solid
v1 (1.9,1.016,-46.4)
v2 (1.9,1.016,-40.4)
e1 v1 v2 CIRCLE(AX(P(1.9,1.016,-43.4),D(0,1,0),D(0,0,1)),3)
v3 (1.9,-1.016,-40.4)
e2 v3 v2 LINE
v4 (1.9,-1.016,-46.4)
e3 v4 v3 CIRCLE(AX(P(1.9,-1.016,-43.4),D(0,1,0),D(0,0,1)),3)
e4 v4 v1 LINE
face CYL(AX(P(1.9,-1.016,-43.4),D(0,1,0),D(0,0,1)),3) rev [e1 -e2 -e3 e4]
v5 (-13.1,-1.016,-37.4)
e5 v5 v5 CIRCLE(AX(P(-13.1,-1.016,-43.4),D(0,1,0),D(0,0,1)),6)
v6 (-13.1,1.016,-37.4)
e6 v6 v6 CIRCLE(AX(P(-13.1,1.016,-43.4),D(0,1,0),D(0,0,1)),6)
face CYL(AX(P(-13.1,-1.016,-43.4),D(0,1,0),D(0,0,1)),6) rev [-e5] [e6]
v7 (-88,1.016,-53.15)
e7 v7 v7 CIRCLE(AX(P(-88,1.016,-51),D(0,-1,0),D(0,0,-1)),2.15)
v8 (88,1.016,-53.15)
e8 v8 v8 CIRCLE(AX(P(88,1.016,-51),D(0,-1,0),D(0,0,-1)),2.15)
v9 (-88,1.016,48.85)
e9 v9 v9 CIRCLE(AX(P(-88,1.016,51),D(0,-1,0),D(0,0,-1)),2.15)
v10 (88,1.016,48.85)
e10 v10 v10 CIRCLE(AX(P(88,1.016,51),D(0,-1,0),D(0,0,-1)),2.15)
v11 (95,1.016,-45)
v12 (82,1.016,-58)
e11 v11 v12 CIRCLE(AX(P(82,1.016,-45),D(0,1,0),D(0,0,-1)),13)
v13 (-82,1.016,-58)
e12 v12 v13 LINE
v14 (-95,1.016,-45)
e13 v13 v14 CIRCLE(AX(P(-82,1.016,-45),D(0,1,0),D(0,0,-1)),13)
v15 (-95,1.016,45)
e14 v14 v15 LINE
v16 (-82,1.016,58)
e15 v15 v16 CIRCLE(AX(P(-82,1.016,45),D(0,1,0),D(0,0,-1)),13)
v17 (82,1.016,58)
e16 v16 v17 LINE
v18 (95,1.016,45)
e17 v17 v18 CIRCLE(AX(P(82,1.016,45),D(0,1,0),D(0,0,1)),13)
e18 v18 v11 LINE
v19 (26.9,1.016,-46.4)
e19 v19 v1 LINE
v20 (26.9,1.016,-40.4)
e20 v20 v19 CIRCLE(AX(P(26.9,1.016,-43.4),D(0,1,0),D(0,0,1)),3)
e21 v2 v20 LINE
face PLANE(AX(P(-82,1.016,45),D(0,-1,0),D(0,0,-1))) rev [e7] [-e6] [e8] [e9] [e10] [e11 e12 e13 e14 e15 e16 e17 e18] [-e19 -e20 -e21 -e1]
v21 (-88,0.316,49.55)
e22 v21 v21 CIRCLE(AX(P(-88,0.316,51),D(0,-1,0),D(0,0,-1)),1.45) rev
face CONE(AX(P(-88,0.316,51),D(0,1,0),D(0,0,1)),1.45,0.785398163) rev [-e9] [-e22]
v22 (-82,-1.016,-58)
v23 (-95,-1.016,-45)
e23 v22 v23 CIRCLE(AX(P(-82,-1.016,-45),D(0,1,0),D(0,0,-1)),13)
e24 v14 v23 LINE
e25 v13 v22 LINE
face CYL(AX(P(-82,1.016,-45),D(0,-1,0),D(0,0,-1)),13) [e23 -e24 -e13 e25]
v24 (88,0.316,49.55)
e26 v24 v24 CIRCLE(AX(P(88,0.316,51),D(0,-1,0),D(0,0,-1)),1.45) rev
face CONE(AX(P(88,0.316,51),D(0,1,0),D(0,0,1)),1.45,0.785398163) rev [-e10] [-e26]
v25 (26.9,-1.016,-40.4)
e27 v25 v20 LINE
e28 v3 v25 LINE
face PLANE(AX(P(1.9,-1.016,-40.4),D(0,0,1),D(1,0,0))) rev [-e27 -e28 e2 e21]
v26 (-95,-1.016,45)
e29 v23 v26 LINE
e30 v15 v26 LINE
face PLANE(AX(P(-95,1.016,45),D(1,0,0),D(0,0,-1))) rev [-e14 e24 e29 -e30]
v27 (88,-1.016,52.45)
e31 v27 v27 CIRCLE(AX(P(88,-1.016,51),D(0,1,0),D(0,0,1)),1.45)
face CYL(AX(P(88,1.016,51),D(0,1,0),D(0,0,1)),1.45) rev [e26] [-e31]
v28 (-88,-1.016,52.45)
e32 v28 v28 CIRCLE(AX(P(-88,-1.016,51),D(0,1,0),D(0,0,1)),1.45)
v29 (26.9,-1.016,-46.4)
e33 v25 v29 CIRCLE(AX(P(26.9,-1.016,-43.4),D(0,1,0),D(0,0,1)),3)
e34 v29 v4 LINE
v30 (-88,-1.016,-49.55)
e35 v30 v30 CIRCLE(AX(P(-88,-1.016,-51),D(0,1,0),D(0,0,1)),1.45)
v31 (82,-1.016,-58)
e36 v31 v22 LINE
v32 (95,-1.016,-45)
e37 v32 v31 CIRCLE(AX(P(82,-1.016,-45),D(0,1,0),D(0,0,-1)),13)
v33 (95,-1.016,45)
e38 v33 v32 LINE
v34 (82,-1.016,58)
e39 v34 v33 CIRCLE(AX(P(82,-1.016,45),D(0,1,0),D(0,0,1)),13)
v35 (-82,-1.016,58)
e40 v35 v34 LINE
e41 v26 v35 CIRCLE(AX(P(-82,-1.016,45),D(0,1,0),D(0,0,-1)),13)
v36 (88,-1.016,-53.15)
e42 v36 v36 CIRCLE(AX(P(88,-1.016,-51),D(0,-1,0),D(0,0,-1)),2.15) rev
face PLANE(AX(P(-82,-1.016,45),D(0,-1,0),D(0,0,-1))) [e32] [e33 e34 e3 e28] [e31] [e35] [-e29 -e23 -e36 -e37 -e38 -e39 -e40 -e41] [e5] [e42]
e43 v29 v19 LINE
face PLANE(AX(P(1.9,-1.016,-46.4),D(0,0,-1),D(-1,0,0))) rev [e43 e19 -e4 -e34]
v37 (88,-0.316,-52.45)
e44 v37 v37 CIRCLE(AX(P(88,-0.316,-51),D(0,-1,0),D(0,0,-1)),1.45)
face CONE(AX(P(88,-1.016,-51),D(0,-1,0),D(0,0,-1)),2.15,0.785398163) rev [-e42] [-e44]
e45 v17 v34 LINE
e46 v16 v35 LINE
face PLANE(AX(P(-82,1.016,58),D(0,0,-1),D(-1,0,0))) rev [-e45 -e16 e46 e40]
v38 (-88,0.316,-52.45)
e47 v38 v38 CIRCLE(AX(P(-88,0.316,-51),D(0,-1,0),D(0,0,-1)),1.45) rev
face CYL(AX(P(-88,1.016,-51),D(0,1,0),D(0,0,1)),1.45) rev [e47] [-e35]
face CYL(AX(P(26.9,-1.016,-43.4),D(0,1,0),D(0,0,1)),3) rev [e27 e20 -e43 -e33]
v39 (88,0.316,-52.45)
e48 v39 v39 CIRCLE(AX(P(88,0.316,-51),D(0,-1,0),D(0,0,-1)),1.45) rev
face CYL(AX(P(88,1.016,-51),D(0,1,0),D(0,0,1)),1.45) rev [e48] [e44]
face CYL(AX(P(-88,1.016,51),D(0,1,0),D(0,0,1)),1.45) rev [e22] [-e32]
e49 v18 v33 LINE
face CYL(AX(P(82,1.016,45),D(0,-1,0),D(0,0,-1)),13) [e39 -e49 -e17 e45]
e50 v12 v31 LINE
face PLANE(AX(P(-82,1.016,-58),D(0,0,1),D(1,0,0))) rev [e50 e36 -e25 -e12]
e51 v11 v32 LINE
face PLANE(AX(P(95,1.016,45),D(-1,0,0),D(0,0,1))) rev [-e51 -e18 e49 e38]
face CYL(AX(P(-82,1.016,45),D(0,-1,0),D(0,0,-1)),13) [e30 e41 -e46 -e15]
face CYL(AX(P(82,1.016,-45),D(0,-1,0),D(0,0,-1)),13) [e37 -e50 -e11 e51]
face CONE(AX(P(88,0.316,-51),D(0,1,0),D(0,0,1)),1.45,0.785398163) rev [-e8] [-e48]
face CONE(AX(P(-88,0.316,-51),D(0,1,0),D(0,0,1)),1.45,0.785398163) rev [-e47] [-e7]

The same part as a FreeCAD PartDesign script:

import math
import FreeCAD as App
import Part
import Sketcher

V = App.Vector
Q = App.Units.Quantity


def edges_at(feature, points):
    """Names of the edges that pass closest to the given points."""
    edges = feature.Shape.Edges
    near = lambda p: min(range(len(edges)), key=lambda i: edges[i].distToShape(Part.Vertex(*p))[0])
    return sorted({f"Edge{near(p) + 1}" for p in points})

doc = App.newDocument("Part")
body = doc.addObject("PartDesign::Body", "Body")

# Sketch on XZ plane
sketch1 = doc.addObject("Sketcher::SketchObject", "Sketch")
body.addObject(sketch1)
sketch1.AttachmentSupport = (doc.XZ_Plane, [""])
sketch1.MapMode = "FlatFace"
sketch1.addGeometry(Part.LineSegment(V(-82, 58, 0), V(82, 58, 0)), False)
sketch1.addGeometry(Part.ArcOfCircle(Part.Circle(V(82, 45, 0), V(0, 0, 1), 13), math.radians(0), math.radians(90)), False)
sketch1.addGeometry(Part.LineSegment(V(95, 45, 0), V(95, -45, 0)), False)
sketch1.addGeometry(Part.ArcOfCircle(Part.Circle(V(82, -45, 0), V(0, 0, 1), 13), math.radians(-90), math.radians(0)), False)
sketch1.addGeometry(Part.LineSegment(V(82, -58, 0), V(-82, -58, 0)), False)
sketch1.addGeometry(Part.ArcOfCircle(Part.Circle(V(-82, -45, 0), V(0, 0, 1), 13), math.radians(-180), math.radians(-90)), False)
sketch1.addGeometry(Part.LineSegment(V(-95, -45, 0), V(-95, 45, 0)), False)
sketch1.addGeometry(Part.ArcOfCircle(Part.Circle(V(-82, 45, 0), V(0, 0, 1), 13), math.radians(90), math.radians(180)), False)
sketch1.addConstraint(Sketcher.Constraint("Tangent", 0, 2, 1, 2))
sketch1.addConstraint(Sketcher.Constraint("Tangent", 1, 1, 2, 1))
sketch1.addConstraint(Sketcher.Constraint("Tangent", 2, 2, 3, 2))
sketch1.addConstraint(Sketcher.Constraint("Tangent", 3, 1, 4, 1))
sketch1.addConstraint(Sketcher.Constraint("Tangent", 4, 2, 5, 2))
sketch1.addConstraint(Sketcher.Constraint("Tangent", 5, 1, 6, 1))
sketch1.addConstraint(Sketcher.Constraint("Tangent", 6, 2, 7, 2))
sketch1.addConstraint(Sketcher.Constraint("Tangent", 7, 1, 0, 1))
sketch1.addConstraint(Sketcher.Constraint("Horizontal", 0))
sketch1.addConstraint(Sketcher.Constraint("Vertical", 2))
sketch1.addConstraint(Sketcher.Constraint("Horizontal", 4))
sketch1.addConstraint(Sketcher.Constraint("Vertical", 6))
sketch1.addConstraint(Sketcher.Constraint("Equal", 1, 3))
sketch1.addConstraint(Sketcher.Constraint("Equal", 3, 5))
sketch1.addConstraint(Sketcher.Constraint("Equal", 5, 7))
sketch1.addConstraint(Sketcher.Constraint("Symmetric", 1, 3, 5, 3, -1, 1))
sketch1.addConstraint(Sketcher.Constraint("Radius", 1, Q("13 mm")))
sketch1.addConstraint(Sketcher.Constraint("DistanceX", 0, 1, 0, 2, Q("164 mm")))
sketch1.addConstraint(Sketcher.Constraint("DistanceY", 2, 2, 2, 1, Q("90 mm")))
pad1 = doc.addObject("PartDesign::Pad", "Pad")
body.addObject(pad1)
pad1.Profile = sketch1
pad1.Length = 2.032
pad1.Midplane = True

# Sketch on XZ plane
sketch2 = doc.addObject("Sketcher::SketchObject", "Sketch001")
body.addObject(sketch2)
sketch2.AttachmentSupport = (doc.XZ_Plane, [""])
sketch2.MapMode = "FlatFace"
sketch2.AttachmentOffset = App.Placement(V(0, 0, -1.016), App.Rotation())
sketch2.addGeometry(Part.Circle(V(-88, 51, 0), V(0, 0, 1), 1.4), False)
sketch2.addGeometry(Part.Circle(V(-88, -51, 0), V(0, 0, 1), 1.4), False)
sketch2.addGeometry(Part.Circle(V(88, 51, 0), V(0, 0, 1), 1.4), False)
sketch2.addGeometry(Part.Circle(V(88, -51, 0), V(0, 0, 1), 1.4), False)
sketch2.addConstraint(Sketcher.Constraint("Equal", 0, 1))
sketch2.addConstraint(Sketcher.Constraint("Equal", 1, 2))
sketch2.addConstraint(Sketcher.Constraint("Equal", 2, 3))
sketch2.addConstraint(Sketcher.Constraint("Symmetric", 1, 3, 2, 3, -1, 1))
sketch2.addConstraint(Sketcher.Constraint("Symmetric", 0, 3, 3, 3, -1, 1))
sketch2.addConstraint(Sketcher.Constraint("Symmetric", 0, 3, 2, 3, -2))
sketch2.addConstraint(Sketcher.Constraint("Diameter", 0, Q("2.9 mm")))
sketch2.addConstraint(Sketcher.Constraint("DistanceX", 0, 3, -1, 1, Q("88 mm")))
sketch2.addConstraint(Sketcher.Constraint("DistanceY", -1, 1, 0, 3, Q("51 mm")))
doc.recompute()
hole = doc.addObject("PartDesign::Hole", "Hole")
body.addObject(hole)
hole.Profile = sketch2
hole.ThreadType = "None"
hole.Diameter = 2.9
hole.DepthType = "ThroughAll"
hole.Reversed = True
doc.recompute()

chamfer = doc.addObject("PartDesign::Chamfer", "Chamfer")
body.addObject(chamfer)
chamfer.Base = (hole, edges_at(hole, [
    (89.45, 1.016, -51),
    (89.45, -1.016, -51),
    (89.45, 1.016, 51),
    (-86.55, 1.016, -51),
    (-86.55, 1.016, 51),
]))
chamfer.Size = 0.7

# Sketch on XZ plane
sketch3 = doc.addObject("Sketcher::SketchObject", "Sketch002")
body.addObject(sketch3)
sketch3.AttachmentSupport = (doc.XZ_Plane, [""])
sketch3.MapMode = "FlatFace"
sketch3.AttachmentOffset = App.Placement(V(0, 0, -1.016), App.Rotation())
sketch3.addGeometry(Part.Circle(V(-13, -43, 0), V(0, 0, 1), 6), False)
sketch3.addConstraint(Sketcher.Constraint("Diameter", 0, Q("12 mm")))
sketch3.addConstraint(Sketcher.Constraint("DistanceX", 0, 3, -1, 1, Q("13.1 mm")))
sketch3.addConstraint(Sketcher.Constraint("DistanceY", 0, 3, -1, 1, Q("43.4 mm")))
pocket1 = doc.addObject("PartDesign::Pocket", "Pocket")
body.addObject(pocket1)
pocket1.Profile = sketch3
pocket1.Type = "ThroughAll"
pocket1.Reversed = True

# Sketch on XZ plane
sketch4 = doc.addObject("Sketcher::SketchObject", "Sketch003")
body.addObject(sketch4)
sketch4.AttachmentSupport = (doc.XZ_Plane, [""])
sketch4.MapMode = "FlatFace"
sketch4.AttachmentOffset = App.Placement(V(0, 0, -1.016), App.Rotation())
sketch4.addGeometry(Part.LineSegment(V(26.9, -46.4, 0), V(1.9, -46.4, 0)), False)
sketch4.addGeometry(Part.ArcOfCircle(Part.Circle(V(1.9, -43.4, 0), V(0, 0, 1), 3), math.radians(90), math.radians(270)), False)
sketch4.addGeometry(Part.LineSegment(V(1.9, -40.4, 0), V(26.9, -40.4, 0)), False)
sketch4.addGeometry(Part.ArcOfCircle(Part.Circle(V(26.9, -43.4, 0), V(0, 0, 1), 3), math.radians(-90), math.radians(90)), False)
sketch4.addConstraint(Sketcher.Constraint("Tangent", 0, 2, 1, 2))
sketch4.addConstraint(Sketcher.Constraint("Tangent", 1, 1, 2, 1))
sketch4.addConstraint(Sketcher.Constraint("Tangent", 2, 2, 3, 2))
sketch4.addConstraint(Sketcher.Constraint("Tangent", 3, 1, 0, 1))
sketch4.addConstraint(Sketcher.Constraint("Horizontal", 0))
sketch4.addConstraint(Sketcher.Constraint("Horizontal", 2))
sketch4.addConstraint(Sketcher.Constraint("Radius", 1, Q("3 mm")))
sketch4.addConstraint(Sketcher.Constraint("DistanceX", 0, 2, 0, 1, Q("25 mm")))
sketch4.addConstraint(Sketcher.Constraint("DistanceX", -1, 1, 1, 3, Q("1.9 mm")))
sketch4.addConstraint(Sketcher.Constraint("DistanceY", 1, 3, -1, 1, Q("43.4 mm")))
pocket2 = doc.addObject("PartDesign::Pocket", "Pocket001")
body.addObject(pocket2)
pocket2.Profile = sketch4
pocket2.Type = "ThroughAll"
pocket2.Reversed = True

doc.recompute()
